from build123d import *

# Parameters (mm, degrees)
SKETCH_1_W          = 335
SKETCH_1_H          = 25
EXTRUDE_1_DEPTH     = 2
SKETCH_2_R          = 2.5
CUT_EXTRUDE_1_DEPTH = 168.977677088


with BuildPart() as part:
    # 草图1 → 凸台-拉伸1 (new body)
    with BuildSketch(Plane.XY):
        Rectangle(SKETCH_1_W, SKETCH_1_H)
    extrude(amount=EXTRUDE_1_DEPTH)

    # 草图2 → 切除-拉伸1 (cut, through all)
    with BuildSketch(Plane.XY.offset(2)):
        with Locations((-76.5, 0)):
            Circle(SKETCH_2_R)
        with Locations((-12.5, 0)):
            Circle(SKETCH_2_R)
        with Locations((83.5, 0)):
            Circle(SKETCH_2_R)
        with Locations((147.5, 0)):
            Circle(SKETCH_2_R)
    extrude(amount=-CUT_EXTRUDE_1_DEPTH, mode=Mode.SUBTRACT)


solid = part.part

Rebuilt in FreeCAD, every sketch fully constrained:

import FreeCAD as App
import Part
import Sketcher

V = App.Vector
Q = App.Units.Quantity


def add_polygon(sketch, points):
    """Adds a closed chain of lines whose ends are joined by coincident constraints."""
    first, n = sketch.GeometryCount, len(points)
    for a, b in zip(points, points[1:] + points[:1]):
        sketch.addGeometry(Part.LineSegment(App.Vector(*a, 0), App.Vector(*b, 0)), False)
    for i in range(n):
        sketch.addConstraint(Sketcher.Constraint("Coincident", first + i, 2, first + (i + 1) % n, 1))

doc = App.newDocument("Part")
body = doc.addObject("PartDesign::Body", "Body")

sketch1 = body.newObject("Sketcher::SketchObject", "Sketch")
sketch1.AttachmentSupport = (doc.getObject("XY_Plane"), [""])
sketch1.MapMode = "FlatFace"
add_polygon(sketch1, [(-168, 12), (-168, -12), (168, -12), (168, 12)])
sketch1.addConstraint([
    Sketcher.Constraint("Vertical", 0),
    Sketcher.Constraint("Horizontal", 1),
    Sketcher.Constraint("Vertical", 2),
    Sketcher.Constraint("Horizontal", 3),
    Sketcher.Constraint("Symmetric", 0, 2, 2, 2, -1, 1),
    Sketcher.Constraint("DistanceX", 1, 1, 1, 2, Q("335 mm")),
    Sketcher.Constraint("DistanceY", 0, 2, 0, 1, Q("25 mm")),
])
pad1 = body.newObject("PartDesign::Pad", "Pad")
pad1.Profile = sketch1
pad1.Length = 2

sketch2 = body.newObject("Sketcher::SketchObject", "Sketch001")
sketch2.AttachmentSupport = (doc.getObject("XY_Plane"), [""])
sketch2.MapMode = "FlatFace"
sketch2.AttachmentOffset = App.Placement(V(0, 0, 2), App.Rotation())
sketch2.addGeometry([
    Part.Circle(V(-76.5, 0, 0), V(0, 0, 1), 2.5),
    Part.Circle(V(-12.5, 0, 0), V(0, 0, 1), 2.5),
    Part.Circle(V(83.5, 0, 0), V(0, 0, 1), 2.5),
    Part.Circle(V(147.5, 0, 0), V(0, 0, 1), 2.5),
], False)
sketch2.addConstraint([
    Sketcher.Constraint("Equal", 0, 1),
    Sketcher.Constraint("Equal", 1, 2),
    Sketcher.Constraint("Equal", 2, 3),
    Sketcher.Constraint("PointOnObject", 0, 3, -1),
    Sketcher.Constraint("PointOnObject", 1, 3, -1),
    Sketcher.Constraint("PointOnObject", 2, 3, -1),
    Sketcher.Constraint("PointOnObject", 3, 3, -1),
    Sketcher.Constraint("Diameter", 0, Q("5 mm")),
    Sketcher.Constraint("DistanceX", 0, 3, 1, 3, Q("64 mm")),
    Sketcher.Constraint("DistanceX", 1, 3, 2, 3, Q("96 mm")),
    Sketcher.Constraint("DistanceX", 2, 3, 3, 3, Q("64 mm")),
    Sketcher.Constraint("DistanceX", 0, 3, -1, 1, Q("76.5 mm")),
])
pocket1 = body.newObject("PartDesign::Pocket", "Pocket")
pocket1.Profile = sketch2
pocket1.Type = "ThroughAll"

doc.recompute()
